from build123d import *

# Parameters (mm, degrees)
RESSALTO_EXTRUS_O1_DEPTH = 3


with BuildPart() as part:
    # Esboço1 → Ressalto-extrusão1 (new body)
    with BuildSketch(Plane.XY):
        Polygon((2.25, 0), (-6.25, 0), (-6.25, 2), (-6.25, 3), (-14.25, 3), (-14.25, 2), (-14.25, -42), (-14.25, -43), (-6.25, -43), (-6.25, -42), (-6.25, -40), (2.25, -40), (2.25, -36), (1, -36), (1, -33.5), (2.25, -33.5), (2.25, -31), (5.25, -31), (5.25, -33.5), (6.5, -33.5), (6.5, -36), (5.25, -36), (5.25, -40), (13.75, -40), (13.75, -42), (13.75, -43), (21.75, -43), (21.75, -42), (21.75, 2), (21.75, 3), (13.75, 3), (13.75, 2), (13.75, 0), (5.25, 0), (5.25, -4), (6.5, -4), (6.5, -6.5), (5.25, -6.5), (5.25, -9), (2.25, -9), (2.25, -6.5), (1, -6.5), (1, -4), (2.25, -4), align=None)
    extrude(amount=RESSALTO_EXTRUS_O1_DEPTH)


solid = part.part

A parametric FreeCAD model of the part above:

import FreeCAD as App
import Part
import Sketcher

V = App.Vector


def add_polygon(sketch, points):
    """Adds a closed chain of lines whose ends are joined by coincident constraints."""
    first, n = sketch.GeometryCount, len(points)
    for a, b in zip(points, points[1:] + points[:1]):
        sketch.addGeometry(Part.LineSegment(App.Vector(*a, 0), App.Vector(*b, 0)), False)
    for i in range(n):
        sketch.addConstraint(Sketcher.Constraint("Coincident", first + i, 2, first + (i + 1) % n, 1))

doc = App.newDocument("Part")
body = doc.addObject("PartDesign::Body", "Body")

# Sketch on XY plane
sketch1 = body.newObject("Sketcher::SketchObject", "Sketch")
sketch1.AttachmentSupport = (doc.getObject("XY_Plane"), [""])
sketch1.MapMode = "FlatFace"
add_polygon(sketch1, [(2.2, 0), (-6.2, 0), (-6.2, 3), (-14.2, 3), (-14.2, -43), (-6.2, -43), (-6.2, -40), (2.2, -40), (2.2, -36), (1, -36), (1, -33.5), (2.2, -33.5), (2.2, -31), (5.2, -31), (5.2, -33.5), (6.5, -33.5), (6.5, -36), (5.2, -36), (5.2, -40), (13.8, -40), (13.8, -43), (21.8, -43), (21.8, 3), (13.8, 3), (13.8, 0), (5.2, 0), (5.2, -4), (6.5, -4), (6.5, -6.5), (5.2, -6.5), (5.2, -9), (2.2, -9), (2.2, -6.5), (1, -6.5), (1, -4), (2.2, -4)])  # lines 0-35
sketch1.addConstraint(Sketcher.Constraint("Horizontal", 0))
sketch1.addConstraint(Sketcher.Constraint("Vertical", 1))
sketch1.addConstraint(Sketcher.Constraint("Horizontal", 2))
sketch1.addConstraint(Sketcher.Constraint("Vertical", 3))
sketch1.addConstraint(Sketcher.Constraint("Horizontal", 4))
sketch1.addConstraint(Sketcher.Constraint("Vertical", 5))
sketch1.addConstraint(Sketcher.Constraint("Horizontal", 6))
sketch1.addConstraint(Sketcher.Constraint("Vertical", 7))
sketch1.addConstraint(Sketcher.Constraint("Horizontal", 8))
sketch1.addConstraint(Sketcher.Constraint("Vertical", 9))
sketch1.addConstraint(Sketcher.Constraint("Horizontal", 10))
sketch1.addConstraint(Sketcher.Constraint("Vertical", 11))
sketch1.addConstraint(Sketcher.Constraint("Horizontal", 12))
sketch1.addConstraint(Sketcher.Constraint("Vertical", 13))
sketch1.addConstraint(Sketcher.Constraint("Horizontal", 14))
sketch1.addConstraint(Sketcher.Constraint("Vertical", 15))
sketch1.addConstraint(Sketcher.Constraint("Horizontal", 16))
sketch1.addConstraint(Sketcher.Constraint("Vertical", 17))
sketch1.addConstraint(Sketcher.Constraint("Horizontal", 18))
sketch1.addConstraint(Sketcher.Constraint("Vertical", 19))
sketch1.addConstraint(Sketcher.Constraint("Horizontal", 20))
sketch1.addConstraint(Sketcher.Constraint("Vertical", 21))
sketch1.addConstraint(Sketcher.Constraint("Horizontal", 22))
sketch1.addConstraint(Sketcher.Constraint("Vertical", 23))
sketch1.addConstraint(Sketcher.Constraint("Horizontal", 24))
sketch1.addConstraint(Sketcher.Constraint("Vertical", 25))
sketch1.addConstraint(Sketcher.Constraint("Horizontal", 26))
sketch1.addConstraint(Sketcher.Constraint("Vertical", 27))
sketch1.addConstraint(Sketcher.Constraint("Horizontal", 28))
sketch1.addConstraint(Sketcher.Constraint("Vertical", 29))
sketch1.addConstraint(Sketcher.Constraint("Horizontal", 30))
sketch1.addConstraint(Sketcher.Constraint("Vertical", 31))
sketch1.addConstraint(Sketcher.Constraint("Horizontal", 32))
sketch1.addConstraint(Sketcher.Constraint("Vertical", 33))
sketch1.addConstraint(Sketcher.Constraint("Horizontal", 34))
sketch1.addConstraint(Sketcher.Constraint("Vertical", 35))
sketch1.addConstraint(Sketcher.Constraint("PointOnObject", 0, 2, -1))
sketch1.addConstraint(Sketcher.Constraint("PointOnObject", 23, 2, -1))
sketch1.addConstraint(Sketcher.Constraint("Horizontal", 10, 2, 13, 2))
sketch1.addConstraint(Sketcher.Constraint("Horizontal", 8, 2, 15, 2))
sketch1.addConstraint(Sketcher.Constraint("Horizontal", 6, 2, 17, 2))
sketch1.addConstraint(Sketcher.Constraint("Horizontal", 4, 2, 19, 2))
sketch1.addConstraint(Sketcher.Constraint("Horizontal", 2, 2, 21, 2))
sketch1.addConstraint(Sketcher.Constraint("Horizontal", 28, 2, 31, 2))
sketch1.addConstraint(Sketcher.Constraint("Horizontal", 26, 2, 33, 2))
sketch1.addConstraint(Sketcher.Constraint("Vertical", 1, 2, 4, 2))
sketch1.addConstraint(Sketcher.Constraint("Vertical", 7, 2, 10, 2))
sketch1.addConstraint(Sketcher.Constraint("Vertical", 13, 2, 16, 2))
sketch1.addConstraint(Sketcher.Constraint("Vertical", 19, 2, 22, 2))
sketch1.addConstraint(Sketcher.Constraint("Vertical", 17, 2, 24, 2))
sketch1.addConstraint(Sketcher.Constraint("Vertical", 15, 2, 26, 2))
sketch1.addConstraint(Sketcher.Constraint("Vertical", 25, 2, 28, 2))
sketch1.addConstraint(Sketcher.Constraint("Vertical", 11, 2, 30, 2))
sketch1.addConstraint(Sketcher.Constraint("Vertical", 9, 2, 32, 2))
sketch1.addConstraint(Sketcher.Constraint("Vertical", 31, 2, 34, 2))
sketch1.addConstraint(Sketcher.Constraint("Equal", 10, 14))
sketch1.addConstraint(Sketcher.Constraint("Equal", 6, 18))
sketch1.addConstraint(Sketcher.Constraint("Equal", 4, 20))
sketch1.addConstraint(Sketcher.Constraint("Equal", 30, 1))
sketch1.addConstraint(Sketcher.Constraint("Equal", 1, 5))
sketch1.addConstraint(Sketcher.Constraint("Equal", 9, 11))
sketch1.addConstraint(Sketcher.Constraint("Equal", 17, 25))
sketch1.addConstraint(Sketcher.Constraint("Equal", 15, 27))
sketch1.addConstraint(Sketcher.Constraint("Equal", 27, 29))
sketch1.addConstraint(Sketcher.Constraint("DistanceX", 2, 2, 2, 1, 8.0))
sketch1.addConstraint(Sketcher.Constraint("DistanceX", 12, 1, 12, 2, 3.0))
sketch1.addConstraint(Sketcher.Constraint("DistanceY", 3, 2, 3, 1, 46.0))
sketch1.addConstraint(Sketcher.Constraint("DistanceY", 7, 1, 7, 2, 4.0))
sketch1.addConstraint(Sketcher.Constraint("DistanceX", 0, 2, 0, 1, 8.5))
sketch1.addConstraint(Sketcher.Constraint("DistanceY", 9, 1, 9, 2, 2.5))
sketch1.addConstraint(Sketcher.Constraint("DistanceX", -1, 1, 8, 2, 1.0))
sketch1.addConstraint(Sketcher.Constraint("DistanceX", 8, 2, 8, 1, 1.25))
pad1 = body.newObject("PartDesign::Pad", "Pad")
pad1.Profile = sketch1
pad1.Length = 3

doc.recompute()
